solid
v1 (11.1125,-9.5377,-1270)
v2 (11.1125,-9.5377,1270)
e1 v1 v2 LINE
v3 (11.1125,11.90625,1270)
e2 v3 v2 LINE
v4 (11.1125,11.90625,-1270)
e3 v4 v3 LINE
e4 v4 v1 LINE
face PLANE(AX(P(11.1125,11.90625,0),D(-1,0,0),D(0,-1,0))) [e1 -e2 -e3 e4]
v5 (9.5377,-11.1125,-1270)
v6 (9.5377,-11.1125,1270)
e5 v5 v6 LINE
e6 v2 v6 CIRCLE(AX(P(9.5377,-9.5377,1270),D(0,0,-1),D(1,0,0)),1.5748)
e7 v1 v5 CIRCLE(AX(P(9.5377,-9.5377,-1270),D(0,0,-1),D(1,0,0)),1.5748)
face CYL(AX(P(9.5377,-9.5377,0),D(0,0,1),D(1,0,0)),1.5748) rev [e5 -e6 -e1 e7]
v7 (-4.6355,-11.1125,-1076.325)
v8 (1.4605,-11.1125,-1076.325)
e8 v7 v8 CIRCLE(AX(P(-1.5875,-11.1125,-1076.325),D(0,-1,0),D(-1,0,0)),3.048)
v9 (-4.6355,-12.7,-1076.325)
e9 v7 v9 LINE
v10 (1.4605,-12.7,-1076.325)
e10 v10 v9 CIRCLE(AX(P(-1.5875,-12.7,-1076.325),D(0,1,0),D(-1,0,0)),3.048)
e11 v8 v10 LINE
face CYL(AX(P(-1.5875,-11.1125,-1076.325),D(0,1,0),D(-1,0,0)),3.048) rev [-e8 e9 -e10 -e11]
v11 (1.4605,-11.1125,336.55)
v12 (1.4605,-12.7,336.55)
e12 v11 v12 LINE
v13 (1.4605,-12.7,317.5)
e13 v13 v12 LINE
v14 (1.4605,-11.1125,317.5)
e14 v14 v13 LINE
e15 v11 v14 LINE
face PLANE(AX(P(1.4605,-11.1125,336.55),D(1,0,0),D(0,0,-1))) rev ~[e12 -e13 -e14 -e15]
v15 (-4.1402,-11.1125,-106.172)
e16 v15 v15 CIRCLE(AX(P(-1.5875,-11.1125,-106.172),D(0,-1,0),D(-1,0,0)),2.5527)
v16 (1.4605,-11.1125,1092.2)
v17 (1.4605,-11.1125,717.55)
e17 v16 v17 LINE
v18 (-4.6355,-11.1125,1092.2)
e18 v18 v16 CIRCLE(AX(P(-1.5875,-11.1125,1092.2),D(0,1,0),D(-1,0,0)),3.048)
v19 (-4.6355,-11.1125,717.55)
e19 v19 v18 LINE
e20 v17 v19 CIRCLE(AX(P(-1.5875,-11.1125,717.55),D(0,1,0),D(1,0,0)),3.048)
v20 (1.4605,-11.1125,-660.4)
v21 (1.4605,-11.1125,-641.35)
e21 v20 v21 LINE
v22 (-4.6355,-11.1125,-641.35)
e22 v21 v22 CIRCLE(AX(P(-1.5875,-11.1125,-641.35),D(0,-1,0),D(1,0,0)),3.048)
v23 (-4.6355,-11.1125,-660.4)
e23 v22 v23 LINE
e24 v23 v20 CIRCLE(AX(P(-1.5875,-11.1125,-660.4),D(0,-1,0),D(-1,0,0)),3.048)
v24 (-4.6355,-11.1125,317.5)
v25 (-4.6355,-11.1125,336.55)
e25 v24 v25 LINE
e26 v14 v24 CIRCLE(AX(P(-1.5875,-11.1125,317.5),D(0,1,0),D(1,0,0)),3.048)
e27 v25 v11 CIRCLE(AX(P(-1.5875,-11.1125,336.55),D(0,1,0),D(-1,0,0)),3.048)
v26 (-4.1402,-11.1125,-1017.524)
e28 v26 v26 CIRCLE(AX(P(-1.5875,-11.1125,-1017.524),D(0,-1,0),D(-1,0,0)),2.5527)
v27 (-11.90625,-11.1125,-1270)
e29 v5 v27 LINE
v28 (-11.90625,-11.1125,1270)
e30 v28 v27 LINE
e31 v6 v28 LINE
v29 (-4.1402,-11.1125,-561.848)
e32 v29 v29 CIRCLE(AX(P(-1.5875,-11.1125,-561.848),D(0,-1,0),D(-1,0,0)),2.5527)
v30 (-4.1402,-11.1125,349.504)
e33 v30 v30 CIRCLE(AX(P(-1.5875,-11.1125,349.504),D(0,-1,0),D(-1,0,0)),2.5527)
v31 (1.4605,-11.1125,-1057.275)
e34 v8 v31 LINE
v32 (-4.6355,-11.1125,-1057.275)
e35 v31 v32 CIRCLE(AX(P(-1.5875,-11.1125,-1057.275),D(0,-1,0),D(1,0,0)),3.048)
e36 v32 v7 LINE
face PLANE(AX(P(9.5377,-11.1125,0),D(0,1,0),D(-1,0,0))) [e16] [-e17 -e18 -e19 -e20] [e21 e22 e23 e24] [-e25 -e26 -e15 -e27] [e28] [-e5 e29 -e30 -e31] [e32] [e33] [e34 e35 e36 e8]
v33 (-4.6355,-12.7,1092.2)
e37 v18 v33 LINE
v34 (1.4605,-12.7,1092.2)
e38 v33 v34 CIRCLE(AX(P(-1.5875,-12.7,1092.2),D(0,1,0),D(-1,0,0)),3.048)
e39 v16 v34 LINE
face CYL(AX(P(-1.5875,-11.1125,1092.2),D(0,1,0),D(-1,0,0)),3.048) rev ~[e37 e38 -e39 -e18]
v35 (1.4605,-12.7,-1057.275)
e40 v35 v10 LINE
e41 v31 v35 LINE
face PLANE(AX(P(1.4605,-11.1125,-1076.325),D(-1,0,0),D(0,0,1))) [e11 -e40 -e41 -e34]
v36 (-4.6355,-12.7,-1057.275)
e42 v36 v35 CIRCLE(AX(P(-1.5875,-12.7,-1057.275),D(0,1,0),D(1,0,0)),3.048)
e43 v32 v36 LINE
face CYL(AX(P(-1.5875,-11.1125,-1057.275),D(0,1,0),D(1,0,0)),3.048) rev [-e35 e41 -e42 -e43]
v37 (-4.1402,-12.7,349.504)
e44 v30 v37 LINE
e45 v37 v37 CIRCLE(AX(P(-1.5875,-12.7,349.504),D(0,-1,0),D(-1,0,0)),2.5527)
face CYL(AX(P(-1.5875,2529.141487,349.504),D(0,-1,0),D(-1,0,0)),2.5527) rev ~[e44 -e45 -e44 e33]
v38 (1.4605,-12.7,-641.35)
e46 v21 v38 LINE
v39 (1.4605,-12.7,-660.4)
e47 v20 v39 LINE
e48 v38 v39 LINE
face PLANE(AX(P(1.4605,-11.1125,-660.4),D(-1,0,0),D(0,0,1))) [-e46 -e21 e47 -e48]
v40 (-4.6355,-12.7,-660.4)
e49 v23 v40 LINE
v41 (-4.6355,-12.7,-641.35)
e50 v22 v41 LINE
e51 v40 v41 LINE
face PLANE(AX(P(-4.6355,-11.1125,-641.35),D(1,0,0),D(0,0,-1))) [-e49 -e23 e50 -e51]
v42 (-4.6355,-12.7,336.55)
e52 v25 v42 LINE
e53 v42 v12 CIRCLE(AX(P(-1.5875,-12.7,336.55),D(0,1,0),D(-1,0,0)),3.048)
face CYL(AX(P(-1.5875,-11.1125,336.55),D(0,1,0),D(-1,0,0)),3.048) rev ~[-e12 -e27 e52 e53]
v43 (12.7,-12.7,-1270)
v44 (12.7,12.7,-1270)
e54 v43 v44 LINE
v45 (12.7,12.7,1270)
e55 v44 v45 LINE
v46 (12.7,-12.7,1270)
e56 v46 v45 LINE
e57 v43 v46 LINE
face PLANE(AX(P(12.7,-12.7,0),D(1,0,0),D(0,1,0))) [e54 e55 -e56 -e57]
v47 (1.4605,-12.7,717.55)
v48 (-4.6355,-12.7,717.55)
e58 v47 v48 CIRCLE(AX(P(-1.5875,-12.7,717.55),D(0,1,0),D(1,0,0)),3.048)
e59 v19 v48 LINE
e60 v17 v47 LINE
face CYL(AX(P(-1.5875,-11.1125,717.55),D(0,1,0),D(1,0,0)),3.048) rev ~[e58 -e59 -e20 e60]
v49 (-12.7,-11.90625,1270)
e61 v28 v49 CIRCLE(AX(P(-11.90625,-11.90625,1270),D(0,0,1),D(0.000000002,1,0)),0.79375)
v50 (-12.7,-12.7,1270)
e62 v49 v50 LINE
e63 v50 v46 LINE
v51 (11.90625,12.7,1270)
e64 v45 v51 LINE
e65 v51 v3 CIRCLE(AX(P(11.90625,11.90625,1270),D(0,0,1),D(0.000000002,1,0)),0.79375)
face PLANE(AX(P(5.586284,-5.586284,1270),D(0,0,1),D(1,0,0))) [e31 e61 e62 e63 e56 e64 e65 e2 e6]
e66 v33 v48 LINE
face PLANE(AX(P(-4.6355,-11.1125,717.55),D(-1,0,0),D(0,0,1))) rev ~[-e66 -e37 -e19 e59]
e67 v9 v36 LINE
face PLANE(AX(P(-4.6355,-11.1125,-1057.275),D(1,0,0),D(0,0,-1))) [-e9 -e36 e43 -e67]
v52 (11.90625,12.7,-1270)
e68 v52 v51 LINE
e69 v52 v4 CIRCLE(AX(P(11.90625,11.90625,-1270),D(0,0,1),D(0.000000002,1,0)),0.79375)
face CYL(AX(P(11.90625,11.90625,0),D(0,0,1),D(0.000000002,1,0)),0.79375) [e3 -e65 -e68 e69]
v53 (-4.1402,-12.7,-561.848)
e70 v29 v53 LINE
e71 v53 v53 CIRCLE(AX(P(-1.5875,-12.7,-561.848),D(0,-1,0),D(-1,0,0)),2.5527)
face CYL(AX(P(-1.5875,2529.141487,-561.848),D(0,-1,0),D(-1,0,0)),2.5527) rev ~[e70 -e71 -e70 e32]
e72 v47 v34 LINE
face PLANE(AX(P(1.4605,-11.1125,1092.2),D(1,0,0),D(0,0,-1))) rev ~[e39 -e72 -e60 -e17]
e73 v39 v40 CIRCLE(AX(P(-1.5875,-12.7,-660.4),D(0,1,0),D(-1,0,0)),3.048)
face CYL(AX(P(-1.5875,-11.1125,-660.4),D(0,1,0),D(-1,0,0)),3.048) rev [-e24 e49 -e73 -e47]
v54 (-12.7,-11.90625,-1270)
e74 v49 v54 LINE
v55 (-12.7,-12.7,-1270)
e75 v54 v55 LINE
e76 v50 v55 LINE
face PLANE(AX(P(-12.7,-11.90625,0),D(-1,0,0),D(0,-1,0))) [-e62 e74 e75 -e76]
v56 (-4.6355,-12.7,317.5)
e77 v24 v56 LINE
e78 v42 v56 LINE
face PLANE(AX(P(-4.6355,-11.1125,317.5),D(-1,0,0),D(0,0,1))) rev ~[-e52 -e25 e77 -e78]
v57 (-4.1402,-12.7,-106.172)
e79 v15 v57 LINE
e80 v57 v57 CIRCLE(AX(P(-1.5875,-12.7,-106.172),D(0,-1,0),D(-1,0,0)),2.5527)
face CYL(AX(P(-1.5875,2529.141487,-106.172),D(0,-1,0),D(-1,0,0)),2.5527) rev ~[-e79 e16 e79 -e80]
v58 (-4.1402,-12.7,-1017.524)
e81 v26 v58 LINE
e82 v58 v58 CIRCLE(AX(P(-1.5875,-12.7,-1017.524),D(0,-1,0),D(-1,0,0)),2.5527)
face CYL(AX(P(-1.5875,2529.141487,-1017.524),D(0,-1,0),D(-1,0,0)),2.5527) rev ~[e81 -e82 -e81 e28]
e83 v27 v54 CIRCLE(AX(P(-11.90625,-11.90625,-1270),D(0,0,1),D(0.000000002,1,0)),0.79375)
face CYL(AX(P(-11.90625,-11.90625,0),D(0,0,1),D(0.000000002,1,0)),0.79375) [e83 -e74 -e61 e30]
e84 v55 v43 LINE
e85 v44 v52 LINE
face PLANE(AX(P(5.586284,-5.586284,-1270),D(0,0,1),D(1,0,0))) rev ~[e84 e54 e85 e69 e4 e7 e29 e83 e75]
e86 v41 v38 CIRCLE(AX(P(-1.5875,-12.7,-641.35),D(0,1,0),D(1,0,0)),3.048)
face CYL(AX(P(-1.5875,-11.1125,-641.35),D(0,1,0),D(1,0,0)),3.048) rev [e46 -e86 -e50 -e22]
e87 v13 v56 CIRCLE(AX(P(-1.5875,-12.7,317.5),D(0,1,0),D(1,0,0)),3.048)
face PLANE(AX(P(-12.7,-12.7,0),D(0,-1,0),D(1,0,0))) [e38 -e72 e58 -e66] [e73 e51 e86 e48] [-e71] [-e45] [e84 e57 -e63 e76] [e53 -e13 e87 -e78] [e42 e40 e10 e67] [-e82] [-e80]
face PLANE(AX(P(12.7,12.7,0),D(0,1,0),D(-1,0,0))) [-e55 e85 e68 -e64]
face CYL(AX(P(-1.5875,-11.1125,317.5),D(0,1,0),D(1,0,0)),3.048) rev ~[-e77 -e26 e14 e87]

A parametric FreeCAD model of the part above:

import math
import FreeCAD as App
import Part
import Sketcher

V = App.Vector
Q = App.Units.Quantity

doc = App.newDocument("Part")
params = doc.addObject("Spreadsheet::Sheet", "Params")
for row, (alias, value) in enumerate([
    ("sketch1_width", "1 in"),
    ("sketch1_radius", "0.03125 in"),
    ("sketch1_radius2", "0.062 in"),
    ("pad1_length", "100 in"),
    ("sketch2_diameter", "0.201 in"),
    ("hole_diameter", "0.201 in"),
    ("sketch3_radius", "0.12 in"),
    ("sketch3_height", "0.75 in"),
    ("sketch3_height2", "14.75 in"),
], start=1):
    params.set(f"A{row}", alias)
    params.set(f"B{row}", "=" + value)
    params.setAlias(f"B{row}", alias)

body = doc.addObject("PartDesign::Body", "Body")

# Sketch on XY plane
sketch1 = body.newObject("Sketcher::SketchObject", "Sketch")
sketch1.AttachmentSupport = (doc.getObject("XY_Plane"), [""])
sketch1.MapMode = "FlatFace"
sketch1.addGeometry([
    Part.LineSegment(V(-12.7, -12.7, 0), V(12.7, -12.7, 0)),  # 0
    Part.LineSegment(V(12.7, -12.7, 0), V(12.7, 12.7, 0)),  # 1
    Part.LineSegment(V(12.7, 12.7, 0), V(11.90625, 12.7, 0)),  # 2
    Part.ArcOfCircle(Part.Circle(V(11.90625, 11.90625, 0), V(0, 0, 1), 0.79375), math.radians(90), math.radians(180)),  # 3
    Part.LineSegment(V(11.1125, 11.90625, 0), V(11.1125, -9.5377, 0)),  # 4
    Part.ArcOfCircle(Part.Circle(V(9.5377, -9.5377, 0), V(0, 0, 1), 1.5748), math.radians(-90), math.radians(0)),  # 5
    Part.LineSegment(V(9.5377, -11.1125, 0), V(-11.90625, -11.1125, 0)),  # 6
    Part.ArcOfCircle(Part.Circle(V(-11.90625, -11.90625, 0), V(0, 0, 1), 0.79375), math.radians(90), math.radians(180)),  # 7
    Part.LineSegment(V(-12.7, -11.90625, 0), V(-12.7, -12.7, 0)),  # 8
], False)
sketch1.addConstraint([
    Sketcher.Constraint("Coincident", 0, 2, 1, 1),
    Sketcher.Constraint("Coincident", 1, 2, 2, 1),
    Sketcher.Constraint("Tangent", 2, 2, 3, 1),
    Sketcher.Constraint("Tangent", 3, 2, 4, 1),
    Sketcher.Constraint("Tangent", 4, 2, 5, 2),
    Sketcher.Constraint("Tangent", 5, 1, 6, 1),
    Sketcher.Constraint("Tangent", 6, 2, 7, 1),
    Sketcher.Constraint("Tangent", 7, 2, 8, 1),
    Sketcher.Constraint("Coincident", 8, 2, 0, 1),
    Sketcher.Constraint("Horizontal", 0),
    Sketcher.Constraint("Vertical", 1),
    Sketcher.Constraint("Horizontal", 2),
    Sketcher.Constraint("Vertical", 4),
    Sketcher.Constraint("Horizontal", 6),
    Sketcher.Constraint("Vertical", 8),
    Sketcher.Constraint("Equal", 3, 7),
    Sketcher.Constraint("Symmetric", 3, 3, 7, 3, -1, 1),
    Sketcher.Constraint("Symmetric", 1, 2, 8, 2, -1, 1),
    Sketcher.Constraint("Equal", 0, 1),
    Sketcher.Constraint("DistanceX", 0, 1, 0, 2, Q("1 in")),
    Sketcher.Constraint("Radius", 3, Q("0.03125 in")),
    Sketcher.Constraint("Radius", 5, Q("0.062 in")),
])
sketch1.setExpression("Constraints[19]", "Params.sketch1_width")
sketch1.setExpression("Constraints[20]", "Params.sketch1_radius")
sketch1.setExpression("Constraints[21]", "Params.sketch1_radius2")
pad1 = body.newObject("PartDesign::Pad", "Pad")
pad1.Profile = sketch1
pad1.setExpression("Length", "Params.pad1_length")
pad1.Midplane = True

# Sketch on XZ plane
sketch2 = body.newObject("Sketcher::SketchObject", "Sketch001")
sketch2.AttachmentSupport = (doc.getObject("XZ_Plane"), [""])
sketch2.MapMode = "FlatFace"
sketch2.AttachmentOffset = App.Placement(V(0, 0, 0.4375 * 25.4), App.Rotation())
sketch2.addGeometry([
    Part.Circle(V(-1.5875, 349.504, 0), V(0, 0, 1), 2.5527),
    Part.Circle(V(-1.5875, -106.172, 0), V(0, 0, 1), 2.5527),
    Part.Circle(V(-1.5875, -1017.524, 0), V(0, 0, 1), 2.5527),
    Part.Circle(V(-1.5875, -561.848, 0), V(0, 0, 1), 2.5527),
], False)
sketch2.addConstraint([
    Sketcher.Constraint("Equal", 0, 1),
    Sketcher.Constraint("Equal", 1, 2),
    Sketcher.Constraint("Equal", 2, 3),
    Sketcher.Constraint("Vertical", 0, 3, 1, 3),
    Sketcher.Constraint("Vertical", 1, 3, 2, 3),
    Sketcher.Constraint("Vertical", 2, 3, 3, 3),
    Sketcher.Constraint("Diameter", 0, Q("0.201 in")),
    Sketcher.Constraint("DistanceY", -1, 1, 0, 3, Q("13.76 in")),
    Sketcher.Constraint("DistanceY", 1, 3, -1, 1, Q("4.18 in")),
    Sketcher.Constraint("DistanceY", 2, 3, -1, 1, Q("40.06 in")),
    Sketcher.Constraint("DistanceY", 3, 3, -1, 1, Q("22.12 in")),
    Sketcher.Constraint("DistanceX", 0, 3, -1, 1, Q("0.0625 in")),
])
sketch2.setExpression("Constraints[6]", "Params.sketch2_diameter")
doc.recompute()
hole = body.newObject("PartDesign::Hole", "Hole")
hole.Profile = sketch2
hole.ThreadType = "None"
hole.setExpression("Diameter", "Params.hole_diameter")
hole.DepthType = "ThroughAll"
hole.Reversed = True

# Sketch on XZ plane
sketch3 = body.newObject("Sketcher::SketchObject", "Sketch002")
sketch3.AttachmentSupport = (doc.getObject("XZ_Plane"), [""])
sketch3.MapMode = "FlatFace"
sketch3.AttachmentOffset = App.Placement(V(0, 0, 0.4375 * 25.4), App.Rotation())
sketch3.addGeometry([
    Part.LineSegment(V(-4.6355, -1076.325, 0), V(-4.6355, -1057.275, 0)),  # 0
    Part.ArcOfCircle(Part.Circle(V(-1.5875, -1057.275, 0), V(0, 0, 1), 3.048), math.radians(0), math.radians(180)),  # 1
    Part.LineSegment(V(1.4605, -1057.275, 0), V(1.4605, -1076.325, 0)),  # 2
    Part.ArcOfCircle(Part.Circle(V(-1.5875, -1076.325, 0), V(0, 0, 1), 3.048), math.radians(180), math.radians(360)),  # 3
    Part.LineSegment(V(1.4605, -641.35, 0), V(1.4605, -660.4, 0)),  # 4
    Part.ArcOfCircle(Part.Circle(V(-1.5875, -660.4, 0), V(0, 0, 1), 3.048), math.radians(180), math.radians(360)),  # 5
    Part.LineSegment(V(-4.6355, -660.4, 0), V(-4.6355, -641.35, 0)),  # 6
    Part.ArcOfCircle(Part.Circle(V(-1.5875, -641.35, 0), V(0, 0, 1), 3.048), math.radians(0), math.radians(180)),  # 7
    Part.LineSegment(V(1.4605, 336.55, 0), V(1.4605, 317.5, 0)),  # 8
    Part.ArcOfCircle(Part.Circle(V(-1.5875, 317.5, 0), V(0, 0, 1), 3.048), math.radians(180), math.radians(360)),  # 9
    Part.LineSegment(V(-4.6355, 317.5, 0), V(-4.6355, 336.55, 0)),  # 10
    Part.ArcOfCircle(Part.Circle(V(-1.5875, 336.55, 0), V(0, 0, 1), 3.048), math.radians(0), math.radians(180)),  # 11
    Part.LineSegment(V(-4.6355, 717.55, 0), V(-4.6355, 1092.2, 0)),  # 12
    Part.ArcOfCircle(Part.Circle(V(-1.5875, 1092.2, 0), V(0, 0, 1), 3.048), math.radians(0), math.radians(180)),  # 13
    Part.LineSegment(V(1.4605, 1092.2, 0), V(1.4605, 717.55, 0)),  # 14
    Part.ArcOfCircle(Part.Circle(V(-1.5875, 717.55, 0), V(0, 0, 1), 3.048), math.radians(180), math.radians(360)),  # 15
], False)
sketch3.addConstraint([
    Sketcher.Constraint("Tangent", 0, 2, 1, 2),
    Sketcher.Constraint("Tangent", 1, 1, 2, 1),
    Sketcher.Constraint("Tangent", 2, 2, 3, 2),
    Sketcher.Constraint("Tangent", 3, 1, 0, 1),
    Sketcher.Constraint("Tangent", 4, 2, 5, 2),
    Sketcher.Constraint("Tangent", 5, 1, 6, 1),
    Sketcher.Constraint("Tangent", 6, 2, 7, 2),
    Sketcher.Constraint("Tangent", 7, 1, 4, 1),
    Sketcher.Constraint("Tangent", 8, 2, 9, 2),
    Sketcher.Constraint("Tangent", 9, 1, 10, 1),
    Sketcher.Constraint("Tangent", 10, 2, 11, 2),
    Sketcher.Constraint("Tangent", 11, 1, 8, 1),
    Sketcher.Constraint("Tangent", 12, 2, 13, 2),
    Sketcher.Constraint("Tangent", 13, 1, 14, 1),
    Sketcher.Constraint("Tangent", 14, 2, 15, 2),
    Sketcher.Constraint("Tangent", 15, 1, 12, 1),
    Sketcher.Constraint("Vertical", 0),
    Sketcher.Constraint("Vertical", 2),
    Sketcher.Constraint("Vertical", 4),
    Sketcher.Constraint("Vertical", 6),
    Sketcher.Constraint("Vertical", 8),
    Sketcher.Constraint("Vertical", 10),
    Sketcher.Constraint("Vertical", 12),
    Sketcher.Constraint("Vertical", 14),
    Sketcher.Constraint("Equal", 3, 5),
    Sketcher.Constraint("Equal", 7, 9),
    Sketcher.Constraint("Equal", 11, 13),
    Sketcher.Constraint("Vertical", 3, 3, 5, 3),
    Sketcher.Constraint("Vertical", 7, 3, 9, 3),
    Sketcher.Constraint("Vertical", 11, 3, 13, 3),
    Sketcher.Constraint("Equal", 2, 4),
    Sketcher.Constraint("Equal", 6, 8),
    Sketcher.Constraint("Radius", 1, Q("0.12 in")),
    Sketcher.Constraint("DistanceY", 5, 3, -1, 1, Q("26 in")),
    Sketcher.Constraint("DistanceY", -1, 1, 13, 3, Q("43 in")),
    Sketcher.Constraint("DistanceY", 11, 3, 15, 3, Q("15 in")),
    Sketcher.Constraint("DistanceY", 0, 1, 0, 2, Q("0.75 in")),
    Sketcher.Constraint("DistanceY", 12, 1, 12, 2, Q("14.75 in")),
    Sketcher.Constraint("DistanceX", 1, 3, -1, 1, Q("0.0625 in")),
    Sketcher.Constraint("DistanceY", 1, 3, -1, 1, Q("41.625 in")),
])
sketch3.setExpression("Constraints[32]", "Params.sketch3_radius")
sketch3.setExpression("Constraints[36]", "Params.sketch3_height")
sketch3.setExpression("Constraints[37]", "Params.sketch3_height2")
pocket1 = body.newObject("PartDesign::Pocket", "Pocket")
pocket1.Profile = sketch3
pocket1.Type = "ThroughAll"
pocket1.Reversed = True

doc.recompute()
